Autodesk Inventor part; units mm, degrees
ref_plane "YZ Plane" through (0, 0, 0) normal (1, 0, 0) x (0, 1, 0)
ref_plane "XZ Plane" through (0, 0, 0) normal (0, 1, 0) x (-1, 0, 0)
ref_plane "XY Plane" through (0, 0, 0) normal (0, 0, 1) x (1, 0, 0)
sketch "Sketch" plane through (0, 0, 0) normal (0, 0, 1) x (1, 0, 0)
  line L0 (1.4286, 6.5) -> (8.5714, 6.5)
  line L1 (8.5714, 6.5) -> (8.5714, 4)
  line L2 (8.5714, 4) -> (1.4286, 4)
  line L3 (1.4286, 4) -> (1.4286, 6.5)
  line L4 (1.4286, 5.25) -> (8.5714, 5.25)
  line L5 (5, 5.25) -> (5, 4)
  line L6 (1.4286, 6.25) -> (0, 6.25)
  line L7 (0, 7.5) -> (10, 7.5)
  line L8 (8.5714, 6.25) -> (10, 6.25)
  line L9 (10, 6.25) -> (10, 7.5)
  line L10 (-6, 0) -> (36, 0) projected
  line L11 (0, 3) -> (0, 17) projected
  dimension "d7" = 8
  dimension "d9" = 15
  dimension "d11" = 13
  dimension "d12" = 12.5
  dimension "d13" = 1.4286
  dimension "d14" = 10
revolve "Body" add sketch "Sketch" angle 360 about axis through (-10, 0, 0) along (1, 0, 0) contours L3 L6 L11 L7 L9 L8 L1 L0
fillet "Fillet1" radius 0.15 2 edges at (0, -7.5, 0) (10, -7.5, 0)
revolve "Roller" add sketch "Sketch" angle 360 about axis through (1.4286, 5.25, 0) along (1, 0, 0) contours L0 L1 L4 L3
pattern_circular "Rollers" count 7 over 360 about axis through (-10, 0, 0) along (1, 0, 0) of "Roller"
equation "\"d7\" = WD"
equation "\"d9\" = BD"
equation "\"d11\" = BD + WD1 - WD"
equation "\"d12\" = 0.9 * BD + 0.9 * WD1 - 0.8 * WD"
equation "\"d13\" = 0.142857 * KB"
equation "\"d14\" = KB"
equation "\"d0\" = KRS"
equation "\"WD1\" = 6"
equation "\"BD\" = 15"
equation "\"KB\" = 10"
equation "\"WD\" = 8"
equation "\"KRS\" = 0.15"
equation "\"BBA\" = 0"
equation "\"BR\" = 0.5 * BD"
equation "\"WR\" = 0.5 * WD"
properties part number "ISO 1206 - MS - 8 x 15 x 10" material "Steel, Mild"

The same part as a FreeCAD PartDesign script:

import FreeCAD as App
import Part
import Sketcher
Q = App.Units.Quantity


def edges_at(feature, points):
    """Names of the edges that pass closest to the given points."""
    edges = feature.Shape.Edges
    near = lambda p: min(range(len(edges)), key=lambda i: edges[i].distToShape(Part.Vertex(*p))[0])
    return sorted({f"Edge{near(p) + 1}" for p in points})

doc = App.newDocument("Part")
params = doc.addObject("Spreadsheet::Sheet", "Params")
for row, (alias, value) in enumerate([
    ("sketch1_width", "10 mm"),
    ("sketch1_height", "0.25 mm"),
    ("revolution_angle", "360 deg"),
    ("fillet_radius", "0.15 mm"),
    ("sketch2_height", "1.25 mm"),
    ("revolution2_angle", "360 deg"),
], start=1):
    params.set(f"A{row}", alias)
    params.set(f"B{row}", "=" + value)
    params.setAlias(f"B{row}", alias)

body = doc.addObject("PartDesign::Body", "Body")

sketch1 = body.newObject("Sketcher::SketchObject", "Sketch")
sketch1.AttachmentSupport = (doc.getObject("XY_Plane"), [""])
sketch1.MapMode = "FlatFace"
sketch1.addGeometry(Part.LineSegment(App.Vector(1.43, 6.25, 0), App.Vector(1.43, 6.5, 0)), False)
sketch1.addGeometry(Part.LineSegment(App.Vector(1.43, 6.5, 0), App.Vector(8.57, 6.5, 0)), False)
sketch1.addGeometry(Part.LineSegment(App.Vector(8.57, 6.5, 0), App.Vector(8.57, 6.25, 0)), False)
sketch1.addGeometry(Part.LineSegment(App.Vector(8.57, 6.25, 0), App.Vector(10, 6.25, 0)), False)
sketch1.addGeometry(Part.LineSegment(App.Vector(10, 6.25, 0), App.Vector(10, 7.5, 0)), False)
sketch1.addGeometry(Part.LineSegment(App.Vector(10, 7.5, 0), App.Vector(0, 7.5, 0)), False)
sketch1.addGeometry(Part.LineSegment(App.Vector(0, 7.5, 0), App.Vector(0, 6.25, 0)), False)
sketch1.addGeometry(Part.LineSegment(App.Vector(0, 6.25, 0), App.Vector(1.43, 6.25, 0)), False)
sketch1.addConstraint(Sketcher.Constraint("Coincident", 0, 2, 1, 1))
sketch1.addConstraint(Sketcher.Constraint("Coincident", 1, 2, 2, 1))
sketch1.addConstraint(Sketcher.Constraint("Coincident", 2, 2, 3, 1))
sketch1.addConstraint(Sketcher.Constraint("Coincident", 3, 2, 4, 1))
sketch1.addConstraint(Sketcher.Constraint("Coincident", 4, 2, 5, 1))
sketch1.addConstraint(Sketcher.Constraint("Coincident", 5, 2, 6, 1))
sketch1.addConstraint(Sketcher.Constraint("Coincident", 6, 2, 7, 1))
sketch1.addConstraint(Sketcher.Constraint("Coincident", 7, 2, 0, 1))
sketch1.addConstraint(Sketcher.Constraint("Vertical", 0))
sketch1.addConstraint(Sketcher.Constraint("Horizontal", 1))
sketch1.addConstraint(Sketcher.Constraint("Vertical", 2))
sketch1.addConstraint(Sketcher.Constraint("Horizontal", 3))
sketch1.addConstraint(Sketcher.Constraint("Vertical", 4))
sketch1.addConstraint(Sketcher.Constraint("Horizontal", 5))
sketch1.addConstraint(Sketcher.Constraint("Vertical", 6))
sketch1.addConstraint(Sketcher.Constraint("Horizontal", 7))
sketch1.addConstraint(Sketcher.Constraint("PointOnObject", 5, 2, -2))
sketch1.addConstraint(Sketcher.Constraint("Horizontal", 3, 2, 6, 2))
sketch1.addConstraint(Sketcher.Constraint("Equal", 3, 7))
sketch1.addConstraint(Sketcher.Constraint("DistanceX", 5, 2, 5, 1, Q("10 mm")))
sketch1.addConstraint(Sketcher.Constraint("DistanceX", 3, 1, 3, 2, Q("1.4286 mm")))
sketch1.addConstraint(Sketcher.Constraint("DistanceY", 1, 2, 4, 2, Q("1 mm")))
sketch1.addConstraint(Sketcher.Constraint("DistanceY", 0, 1, 0, 2, Q("0.25 mm")))
sketch1.addConstraint(Sketcher.Constraint("DistanceY", -1, 1, 0, 2, Q("6.5 mm")))
sketch1.setExpression("Constraints[19]", "Params.sketch1_width")
sketch1.setExpression("Constraints[22]", "Params.sketch1_height")
revolution = body.newObject("PartDesign::Revolution", "Revolution")
revolution.Profile = sketch1
revolution.ReferenceAxis = (sketch1, ["H_Axis"])
revolution.setExpression("Angle", "Params.revolution_angle")
doc.recompute()

fillet = body.newObject("PartDesign::Fillet", "Fillet")
fillet.Base = (revolution, edges_at(revolution, [(0, -7.5, 0), (10, -7.5, 0)]))
fillet.setExpression("Radius", "Params.fillet_radius")

sketch2 = body.newObject("Sketcher::SketchObject", "Sketch001")
sketch2.AttachmentSupport = (doc.getObject("XY_Plane"), [""])
sketch2.MapMode = "FlatFace"
sketch2.addGeometry(Part.LineSegment(App.Vector(8.6, 6.5, 0), App.Vector(1.4, 6.5, 0)), False)
sketch2.addGeometry(Part.LineSegment(App.Vector(1.4, 6.5, 0), App.Vector(1.4, 5.2, 0)), False)
sketch2.addGeometry(Part.LineSegment(App.Vector(1.4, 5.2, 0), App.Vector(8.6, 5.2, 0)), False)
sketch2.addGeometry(Part.LineSegment(App.Vector(8.6, 5.2, 0), App.Vector(8.6, 6.5, 0)), False)
sketch2.addGeometry(Part.LineSegment(App.Vector(1.4, 5.2, 0), App.Vector(8.6, 5.2, 0)), True)
sketch2.addConstraint(Sketcher.Constraint("Coincident", 0, 2, 1, 1))
sketch2.addConstraint(Sketcher.Constraint("Coincident", 1, 2, 2, 1))
sketch2.addConstraint(Sketcher.Constraint("Coincident", 2, 2, 3, 1))
sketch2.addConstraint(Sketcher.Constraint("Coincident", 3, 2, 0, 1))
sketch2.addConstraint(Sketcher.Constraint("Horizontal", 0))
sketch2.addConstraint(Sketcher.Constraint("Vertical", 1))
sketch2.addConstraint(Sketcher.Constraint("Horizontal", 2))
sketch2.addConstraint(Sketcher.Constraint("Vertical", 3))
sketch2.addConstraint(Sketcher.Constraint("Horizontal", 4))
sketch2.addConstraint(Sketcher.Constraint("Coincident", 4, 1, 1, 2))
sketch2.addConstraint(Sketcher.Constraint("Vertical", 3, 2, 4, 2))
sketch2.addConstraint(Sketcher.Constraint("DistanceY", 1, 2, 1, 1, Q("1.25 mm")))
sketch2.addConstraint(Sketcher.Constraint("DistanceX", -1, 1, 0, 2, Q("1.4286 mm")))
sketch2.addConstraint(Sketcher.Constraint("DistanceY", -1, 1, 0, 2, Q("6.5 mm")))
sketch2.addConstraint(Sketcher.Constraint("DistanceX", 0, 2, 0, 1, Q("7.1428 mm")))
sketch2.setExpression("Constraints[11]", "Params.sketch2_height")
revolution2 = body.newObject("PartDesign::Revolution", "Revolution001")
revolution2.Profile = sketch2
revolution2.ReferenceAxis = (sketch2, ["Axis0"])
revolution2.setExpression("Angle", "Params.revolution2_angle")
doc.recompute()

polarpattern = body.newObject("PartDesign::PolarPattern", "PolarPattern")
polarpattern.Originals = [revolution2]
polarpattern.Axis = (doc.getObject("X_Axis"), [""])
polarpattern.Angle = 360
polarpattern.Occurrences = 7
body.Tip = polarpattern

doc.recompute()
